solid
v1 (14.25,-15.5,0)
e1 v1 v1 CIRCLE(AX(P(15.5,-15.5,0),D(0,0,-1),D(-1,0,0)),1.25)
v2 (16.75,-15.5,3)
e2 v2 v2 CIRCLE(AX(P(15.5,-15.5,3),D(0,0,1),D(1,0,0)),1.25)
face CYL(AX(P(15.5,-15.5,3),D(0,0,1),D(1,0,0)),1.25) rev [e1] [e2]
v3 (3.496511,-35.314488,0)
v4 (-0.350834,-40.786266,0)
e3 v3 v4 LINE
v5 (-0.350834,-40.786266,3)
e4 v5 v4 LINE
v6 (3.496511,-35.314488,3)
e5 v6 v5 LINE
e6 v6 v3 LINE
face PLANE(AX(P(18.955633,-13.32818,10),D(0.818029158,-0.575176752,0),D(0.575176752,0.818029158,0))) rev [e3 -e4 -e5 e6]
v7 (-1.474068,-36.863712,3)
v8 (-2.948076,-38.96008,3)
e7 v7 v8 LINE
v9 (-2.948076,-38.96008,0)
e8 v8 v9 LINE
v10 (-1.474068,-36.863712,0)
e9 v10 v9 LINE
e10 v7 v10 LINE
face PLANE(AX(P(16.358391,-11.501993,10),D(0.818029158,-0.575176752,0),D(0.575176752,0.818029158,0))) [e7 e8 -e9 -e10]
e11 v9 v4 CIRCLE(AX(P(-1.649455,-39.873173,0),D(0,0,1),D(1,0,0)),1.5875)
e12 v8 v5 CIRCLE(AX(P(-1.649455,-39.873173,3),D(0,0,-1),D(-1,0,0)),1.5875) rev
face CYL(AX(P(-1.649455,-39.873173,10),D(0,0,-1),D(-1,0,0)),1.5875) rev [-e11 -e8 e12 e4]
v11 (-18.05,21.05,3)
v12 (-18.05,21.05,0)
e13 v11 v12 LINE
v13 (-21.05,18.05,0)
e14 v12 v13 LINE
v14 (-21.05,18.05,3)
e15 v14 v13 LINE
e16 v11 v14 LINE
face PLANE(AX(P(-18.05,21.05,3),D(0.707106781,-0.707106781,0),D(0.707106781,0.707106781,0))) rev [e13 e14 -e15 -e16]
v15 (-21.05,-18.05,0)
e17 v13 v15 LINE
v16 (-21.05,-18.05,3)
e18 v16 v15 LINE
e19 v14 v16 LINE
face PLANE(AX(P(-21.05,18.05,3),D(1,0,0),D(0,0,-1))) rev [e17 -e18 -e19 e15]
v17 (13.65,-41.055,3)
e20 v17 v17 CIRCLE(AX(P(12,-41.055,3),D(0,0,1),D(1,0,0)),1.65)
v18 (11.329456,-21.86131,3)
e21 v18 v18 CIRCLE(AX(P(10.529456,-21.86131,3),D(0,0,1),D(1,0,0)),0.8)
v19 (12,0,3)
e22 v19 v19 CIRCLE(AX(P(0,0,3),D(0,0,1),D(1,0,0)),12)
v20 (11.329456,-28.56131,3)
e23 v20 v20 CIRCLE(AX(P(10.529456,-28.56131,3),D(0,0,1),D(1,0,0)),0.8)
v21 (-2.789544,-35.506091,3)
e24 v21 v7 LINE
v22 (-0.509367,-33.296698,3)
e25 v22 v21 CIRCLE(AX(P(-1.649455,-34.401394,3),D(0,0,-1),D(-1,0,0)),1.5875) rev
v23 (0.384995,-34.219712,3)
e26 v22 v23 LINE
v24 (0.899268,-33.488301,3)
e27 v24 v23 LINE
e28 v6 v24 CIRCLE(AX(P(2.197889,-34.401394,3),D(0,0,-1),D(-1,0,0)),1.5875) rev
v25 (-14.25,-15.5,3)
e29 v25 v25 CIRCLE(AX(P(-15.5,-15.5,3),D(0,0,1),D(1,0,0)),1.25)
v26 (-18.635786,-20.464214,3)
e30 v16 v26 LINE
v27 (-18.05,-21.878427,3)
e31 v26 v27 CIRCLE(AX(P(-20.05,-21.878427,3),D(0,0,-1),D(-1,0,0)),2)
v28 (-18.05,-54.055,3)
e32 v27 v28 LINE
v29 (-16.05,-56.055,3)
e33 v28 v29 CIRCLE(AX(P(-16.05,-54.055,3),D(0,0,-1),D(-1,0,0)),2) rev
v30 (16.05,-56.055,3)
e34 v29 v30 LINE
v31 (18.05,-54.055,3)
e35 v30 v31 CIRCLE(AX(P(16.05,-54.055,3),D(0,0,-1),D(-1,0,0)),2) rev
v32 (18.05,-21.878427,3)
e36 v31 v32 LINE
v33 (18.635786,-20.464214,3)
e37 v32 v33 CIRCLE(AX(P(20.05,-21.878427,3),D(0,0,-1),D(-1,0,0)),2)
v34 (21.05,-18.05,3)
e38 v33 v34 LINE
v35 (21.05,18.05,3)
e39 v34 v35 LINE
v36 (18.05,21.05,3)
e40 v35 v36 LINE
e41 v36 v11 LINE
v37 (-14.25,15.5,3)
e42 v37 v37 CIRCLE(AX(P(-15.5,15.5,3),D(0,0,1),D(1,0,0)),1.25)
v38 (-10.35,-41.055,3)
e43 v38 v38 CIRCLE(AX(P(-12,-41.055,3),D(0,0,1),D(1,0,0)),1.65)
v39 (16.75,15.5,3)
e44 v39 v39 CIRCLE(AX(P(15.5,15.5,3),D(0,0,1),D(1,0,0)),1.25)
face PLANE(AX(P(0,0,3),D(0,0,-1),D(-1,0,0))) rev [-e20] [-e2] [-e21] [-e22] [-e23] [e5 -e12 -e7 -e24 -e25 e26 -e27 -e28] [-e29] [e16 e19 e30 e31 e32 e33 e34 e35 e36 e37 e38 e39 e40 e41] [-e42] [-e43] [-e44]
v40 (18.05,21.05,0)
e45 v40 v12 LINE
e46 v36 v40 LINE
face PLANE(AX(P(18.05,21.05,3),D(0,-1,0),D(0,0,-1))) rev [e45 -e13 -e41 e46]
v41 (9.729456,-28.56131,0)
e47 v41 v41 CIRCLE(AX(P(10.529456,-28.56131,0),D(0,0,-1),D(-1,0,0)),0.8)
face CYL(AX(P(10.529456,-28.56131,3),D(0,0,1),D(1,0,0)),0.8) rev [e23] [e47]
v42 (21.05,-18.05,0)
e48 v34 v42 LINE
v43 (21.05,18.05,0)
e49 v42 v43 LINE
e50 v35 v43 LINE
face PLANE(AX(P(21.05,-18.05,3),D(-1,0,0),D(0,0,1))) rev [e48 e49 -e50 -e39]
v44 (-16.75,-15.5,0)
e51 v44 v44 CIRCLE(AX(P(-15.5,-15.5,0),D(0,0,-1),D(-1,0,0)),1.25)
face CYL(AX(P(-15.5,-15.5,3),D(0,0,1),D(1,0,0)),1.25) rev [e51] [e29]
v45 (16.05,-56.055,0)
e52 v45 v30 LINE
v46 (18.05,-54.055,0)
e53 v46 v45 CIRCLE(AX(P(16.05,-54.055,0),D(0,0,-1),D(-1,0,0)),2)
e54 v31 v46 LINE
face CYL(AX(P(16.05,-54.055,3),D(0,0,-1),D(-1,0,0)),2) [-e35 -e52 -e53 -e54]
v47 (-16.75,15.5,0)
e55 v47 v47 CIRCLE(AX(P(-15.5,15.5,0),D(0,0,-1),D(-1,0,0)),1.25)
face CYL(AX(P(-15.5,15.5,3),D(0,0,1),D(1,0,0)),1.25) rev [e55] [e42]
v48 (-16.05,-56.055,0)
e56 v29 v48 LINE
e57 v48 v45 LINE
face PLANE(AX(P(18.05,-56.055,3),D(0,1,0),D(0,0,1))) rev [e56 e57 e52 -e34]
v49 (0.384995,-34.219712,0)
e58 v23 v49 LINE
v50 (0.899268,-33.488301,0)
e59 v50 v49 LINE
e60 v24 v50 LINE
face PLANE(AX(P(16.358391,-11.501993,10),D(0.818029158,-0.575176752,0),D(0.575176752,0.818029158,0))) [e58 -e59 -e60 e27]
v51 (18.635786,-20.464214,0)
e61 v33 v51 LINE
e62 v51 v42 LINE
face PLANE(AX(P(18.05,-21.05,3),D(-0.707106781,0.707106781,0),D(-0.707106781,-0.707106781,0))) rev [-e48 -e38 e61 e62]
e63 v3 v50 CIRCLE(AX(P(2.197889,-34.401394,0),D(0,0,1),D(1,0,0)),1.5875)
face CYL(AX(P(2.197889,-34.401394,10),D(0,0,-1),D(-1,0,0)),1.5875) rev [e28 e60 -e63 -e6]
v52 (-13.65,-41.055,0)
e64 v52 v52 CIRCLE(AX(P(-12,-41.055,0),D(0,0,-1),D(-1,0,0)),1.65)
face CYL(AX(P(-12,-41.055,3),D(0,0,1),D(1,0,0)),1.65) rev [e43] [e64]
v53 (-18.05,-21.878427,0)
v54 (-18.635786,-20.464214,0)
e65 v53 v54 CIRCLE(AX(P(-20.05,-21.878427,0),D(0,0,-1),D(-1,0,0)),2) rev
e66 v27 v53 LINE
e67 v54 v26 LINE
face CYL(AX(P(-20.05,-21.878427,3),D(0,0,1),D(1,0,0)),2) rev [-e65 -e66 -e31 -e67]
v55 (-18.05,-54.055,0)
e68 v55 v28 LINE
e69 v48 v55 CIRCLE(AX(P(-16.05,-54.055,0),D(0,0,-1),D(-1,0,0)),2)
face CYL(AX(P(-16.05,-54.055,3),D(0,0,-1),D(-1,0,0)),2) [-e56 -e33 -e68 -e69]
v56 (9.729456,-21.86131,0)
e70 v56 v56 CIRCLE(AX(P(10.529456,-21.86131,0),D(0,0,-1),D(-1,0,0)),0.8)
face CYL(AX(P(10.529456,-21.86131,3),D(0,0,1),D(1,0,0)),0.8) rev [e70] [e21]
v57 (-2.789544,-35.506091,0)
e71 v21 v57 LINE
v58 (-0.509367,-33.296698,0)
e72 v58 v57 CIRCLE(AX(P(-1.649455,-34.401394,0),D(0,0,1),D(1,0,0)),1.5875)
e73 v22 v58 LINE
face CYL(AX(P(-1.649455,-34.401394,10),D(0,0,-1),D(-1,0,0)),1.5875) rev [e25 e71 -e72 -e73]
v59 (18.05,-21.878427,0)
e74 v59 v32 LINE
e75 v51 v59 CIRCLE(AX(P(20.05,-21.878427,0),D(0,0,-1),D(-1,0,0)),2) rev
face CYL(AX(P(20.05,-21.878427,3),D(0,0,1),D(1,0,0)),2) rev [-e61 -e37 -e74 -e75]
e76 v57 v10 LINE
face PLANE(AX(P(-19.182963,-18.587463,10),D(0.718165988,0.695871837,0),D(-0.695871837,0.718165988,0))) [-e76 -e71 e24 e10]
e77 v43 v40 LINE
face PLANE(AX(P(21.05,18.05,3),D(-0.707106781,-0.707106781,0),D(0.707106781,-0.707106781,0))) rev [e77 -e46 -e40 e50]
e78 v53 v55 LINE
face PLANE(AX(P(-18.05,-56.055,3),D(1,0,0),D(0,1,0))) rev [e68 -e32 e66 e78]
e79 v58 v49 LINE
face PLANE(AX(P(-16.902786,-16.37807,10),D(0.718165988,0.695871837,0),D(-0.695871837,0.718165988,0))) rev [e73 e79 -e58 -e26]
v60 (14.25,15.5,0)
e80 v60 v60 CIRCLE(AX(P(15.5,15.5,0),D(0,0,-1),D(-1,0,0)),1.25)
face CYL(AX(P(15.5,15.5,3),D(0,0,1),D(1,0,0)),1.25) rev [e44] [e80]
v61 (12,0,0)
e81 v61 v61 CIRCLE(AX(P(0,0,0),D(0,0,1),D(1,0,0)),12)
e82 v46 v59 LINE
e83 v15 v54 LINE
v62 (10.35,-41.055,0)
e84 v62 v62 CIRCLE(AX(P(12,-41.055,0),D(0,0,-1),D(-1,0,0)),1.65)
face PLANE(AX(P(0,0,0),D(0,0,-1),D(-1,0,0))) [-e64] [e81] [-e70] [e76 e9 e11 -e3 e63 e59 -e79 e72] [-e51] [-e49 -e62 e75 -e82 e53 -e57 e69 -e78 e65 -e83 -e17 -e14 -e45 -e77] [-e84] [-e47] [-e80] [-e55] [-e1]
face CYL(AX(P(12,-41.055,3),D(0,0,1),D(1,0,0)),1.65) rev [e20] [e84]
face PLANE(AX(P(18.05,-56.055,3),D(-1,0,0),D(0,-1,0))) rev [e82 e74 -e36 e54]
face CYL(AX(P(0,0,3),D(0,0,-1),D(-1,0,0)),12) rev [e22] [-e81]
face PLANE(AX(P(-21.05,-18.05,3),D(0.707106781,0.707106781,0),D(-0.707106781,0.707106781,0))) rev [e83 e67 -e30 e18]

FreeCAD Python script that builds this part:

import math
import FreeCAD as App
import Part
import Sketcher

V = App.Vector
Q = App.Units.Quantity


def edges_at(feature, points):
    """Names of the edges that pass closest to the given points."""
    edges = feature.Shape.Edges
    near = lambda p: min(range(len(edges)), key=lambda i: edges[i].distToShape(Part.Vertex(*p))[0])
    return sorted({f"Edge{near(p) + 1}" for p in points})

doc = App.newDocument("Part")
body = doc.addObject("PartDesign::Body", "Body")

# Sketch on XY plane
sketch1 = doc.addObject("Sketcher::SketchObject", "Sketch")
body.addObject(sketch1)
sketch1.AttachmentSupport = (doc.XY_Plane, [""])
sketch1.MapMode = "FlatFace"
sketch1.addGeometry([
    Part.LineSegment(V(18.1, -56.1, 0), V(18.1, -21.1, 0)),  # 0
    Part.LineSegment(V(18.1, -21.1, 0), V(21.1, -18.1, 0)),  # 1
    Part.LineSegment(V(21.1, -18.1, 0), V(21.1, 18.1, 0)),  # 2
    Part.LineSegment(V(21.1, 18.1, 0), V(18.1, 21.1, 0)),  # 3
    Part.LineSegment(V(18.1, 21.1, 0), V(-18.1, 21.1, 0)),  # 4
    Part.LineSegment(V(-18.1, 21.1, 0), V(-21.1, 18.1, 0)),  # 5
    Part.LineSegment(V(-21.1, 18.1, 0), V(-21.1, -18.1, 0)),  # 6
    Part.LineSegment(V(-21.1, -18.1, 0), V(-18.1, -21.1, 0)),  # 7
    Part.LineSegment(V(-18.1, -21.1, 0), V(-18.1, -56.1, 0)),  # 8
    Part.LineSegment(V(-18.1, -56.1, 0), V(18.1, -56.1, 0)),  # 9
    Part.Circle(V(0, 0, 0), V(0, 0, 1), 12),  # 10
], False)
sketch1.addConstraint([
    Sketcher.Constraint("Coincident", 0, 2, 1, 1),
    Sketcher.Constraint("Coincident", 1, 2, 2, 1),
    Sketcher.Constraint("Coincident", 2, 2, 3, 1),
    Sketcher.Constraint("Coincident", 3, 2, 4, 1),
    Sketcher.Constraint("Coincident", 4, 2, 5, 1),
    Sketcher.Constraint("Coincident", 5, 2, 6, 1),
    Sketcher.Constraint("Coincident", 6, 2, 7, 1),
    Sketcher.Constraint("Coincident", 7, 2, 8, 1),
    Sketcher.Constraint("Coincident", 8, 2, 9, 1),
    Sketcher.Constraint("Coincident", 9, 2, 0, 1),
    Sketcher.Constraint("Vertical", 0),
    Sketcher.Constraint("Vertical", 2),
    Sketcher.Constraint("Horizontal", 4),
    Sketcher.Constraint("Vertical", 6),
    Sketcher.Constraint("Vertical", 8),
    Sketcher.Constraint("Horizontal", 9),
    Sketcher.Constraint("Coincident", 10, 3, -1, 1),
    Sketcher.Constraint("Symmetric", 0, 2, 4, 2, -1, 1),
    Sketcher.Constraint("Symmetric", 1, 2, 5, 2, -1, 1),
    Sketcher.Constraint("Symmetric", 3, 2, 7, 2, -1, 1),
    Sketcher.Constraint("Perpendicular", 1, 3),
    Sketcher.Constraint("Perpendicular", 5, 7),
    Sketcher.Constraint("Horizontal", 2, 2, 5, 2),
    Sketcher.Constraint("Vertical", 0, 2, 3, 2),
    Sketcher.Constraint("Equal", 9, 2),
    Sketcher.Constraint("Diameter", 10, Q("24 mm")),
    Sketcher.Constraint("DistanceX", 4, 2, 4, 1, Q("36.1 mm")),
    Sketcher.Constraint("DistanceX", 0, 2, 1, 2, Q("3 mm")),
    Sketcher.Constraint("DistanceY", 0, 1, 0, 2, Q("35.005 mm")),
])
pad1 = doc.addObject("PartDesign::Pad", "Pad")
body.addObject(pad1)
pad1.Profile = sketch1
pad1.Length = 3

# Sketch on XY plane
sketch2 = doc.addObject("Sketcher::SketchObject", "Sketch001")
body.addObject(sketch2)
sketch2.AttachmentSupport = (doc.XY_Plane, [""])
sketch2.MapMode = "FlatFace"
sketch2.AttachmentOffset = App.Placement(V(0, 0, 3), App.Rotation())
sketch2.addGeometry([
    Part.Circle(V(-15.5, 15.5, 0), V(0, 0, 1), 1.2),
    Part.Circle(V(15.5, 15.5, 0), V(0, 0, 1), 1.2),
    Part.Circle(V(-15.5, -15.5, 0), V(0, 0, 1), 1.2),
    Part.Circle(V(15.5, -15.5, 0), V(0, 0, 1), 1.2),
], False)
sketch2.addConstraint([
    Sketcher.Constraint("Equal", 0, 1),
    Sketcher.Constraint("Equal", 1, 2),
    Sketcher.Constraint("Equal", 2, 3),
    Sketcher.Constraint("Symmetric", 1, 3, 2, 3, -1, 1),
    Sketcher.Constraint("Symmetric", 0, 3, 3, 3, -1, 1),
    Sketcher.Constraint("Symmetric", 0, 3, 1, 3, -2),
    Sketcher.Constraint("Diameter", 0, Q("2.5 mm")),
    Sketcher.Constraint("DistanceX", 0, 3, 1, 3, Q("31 mm")),
    Sketcher.Constraint("DistanceY", 2, 3, 0, 3, Q("31 mm")),
])
doc.recompute()
hole = doc.addObject("PartDesign::Hole", "Hole")
body.addObject(hole)
hole.Profile = sketch2
hole.ThreadType = "None"
hole.Diameter = 2.5
hole.DepthType = "Dimension"
hole.Depth = 5
hole.DrillPoint = "Angled"
hole.DrillPointAngle = 118

# Sketch on XY plane
sketch3 = doc.addObject("Sketcher::SketchObject", "Sketch002")
body.addObject(sketch3)
sketch3.AttachmentSupport = (doc.XY_Plane, [""])
sketch3.MapMode = "FlatFace"
sketch3.AttachmentOffset = App.Placement(V(0, 0, 3), App.Rotation())
sketch3.addGeometry([
    Part.Circle(V(12, -41.1, 0), V(0, 0, 1), 1.6),
    Part.Circle(V(-12, -41.1, 0), V(0, 0, 1), 1.6),
], False)
sketch3.addConstraint([
    Sketcher.Constraint("Equal", 0, 1),
    Sketcher.Constraint("Symmetric", 0, 3, 1, 3, -2),
    Sketcher.Constraint("Diameter", 0, Q("3.3 mm")),
    Sketcher.Constraint("DistanceX", -1, 1, 0, 3, Q("12 mm")),
    Sketcher.Constraint("DistanceY", 0, 3, -1, 1, Q("41.055 mm")),
])
doc.recompute()
hole2 = doc.addObject("PartDesign::Hole", "Hole001")
body.addObject(hole2)
hole2.Profile = sketch3
hole2.ThreadType = "None"
hole2.Diameter = 3.3
hole2.DepthType = "Dimension"
hole2.Depth = 5
hole2.DrillPoint = "Angled"
hole2.DrillPointAngle = 118
doc.recompute()

fillet = doc.addObject("PartDesign::Fillet", "Fillet")
body.addObject(fillet)
fillet.Base = (hole2, edges_at(hole2, [
    (18.05, -21.05, 1.5),
    (18.05, -56.055, 1.5),
    (-18.05, -56.055, 1.5),
    (-18.05, -21.05, 1.5),
]))
fillet.Radius = 2

# Sketch on XY plane
sketch4 = doc.addObject("Sketcher::SketchObject", "Sketch003")
body.addObject(sketch4)
sketch4.AttachmentSupport = (doc.XY_Plane, [""])
sketch4.MapMode = "FlatFace"
sketch4.AttachmentOffset = App.Placement(V(0, 0, 3), App.Rotation())
sketch4.addGeometry([
    Part.Circle(V(10.5, -21.9, 0), V(0, 0, 1), 0.8),
    Part.Circle(V(10.5, -28.6, 0), V(0, 0, 1), 0.8),
], False)
sketch4.addConstraint([
    Sketcher.Constraint("Equal", 0, 1),
    Sketcher.Constraint("Vertical", 0, 3, 1, 3),
    Sketcher.Constraint("Diameter", 0, Q("1.6 mm")),
    Sketcher.Constraint("DistanceY", 1, 3, 0, 3, Q("6.7 mm")),
    Sketcher.Constraint("DistanceY", 0, 3, -1, 1, Q("21.86131 mm")),
    Sketcher.Constraint("DistanceX", -1, 1, 0, 3, Q("10.529456 mm")),
])
doc.recompute()
hole3 = doc.addObject("PartDesign::Hole", "Hole002")
body.addObject(hole3)
hole3.Profile = sketch4
hole3.ThreadType = "None"
hole3.Diameter = 1.6
hole3.DepthType = "Dimension"
hole3.Depth = 5
hole3.DrillPoint = "Angled"
hole3.DrillPointAngle = 118

# Sketch on XY plane
sketch5 = doc.addObject("Sketcher::SketchObject", "Sketch004")
body.addObject(sketch5)
sketch5.AttachmentSupport = (doc.XY_Plane, [""])
sketch5.MapMode = "FlatFace"
sketch5.addGeometry([
    Part.LineSegment(V(-0.4, -40.8, 0), V(3.5, -35.3, 0)),  # 0
    Part.ArcOfCircle(Part.Circle(V(2.2, -34.4, 0), V(0, 0, 1), 1.6), math.radians(-35), math.radians(145)),  # 1
    Part.LineSegment(V(0.9, -33.5, 0), V(0.4, -34.2, 0)),  # 2
    Part.LineSegment(V(0.4, -34.2, 0), V(-0.5, -33.3, 0)),  # 3
    Part.ArcOfCircle(Part.Circle(V(-1.6, -34.4, 0), V(0, 0, 1), 1.6), math.radians(44), math.radians(224)),  # 4
    Part.LineSegment(V(-2.8, -35.5, 0), V(-1.5, -36.9, 0)),  # 5
    Part.LineSegment(V(-1.5, -36.9, 0), V(-2.9, -39, 0)),  # 6
    Part.ArcOfCircle(Part.Circle(V(-1.6, -39.9, 0), V(0, 0, 1), 1.6), math.radians(145), math.radians(325)),  # 7
], False)
sketch5.addConstraint([
    Sketcher.Constraint("Tangent", 0, 2, 1, 1),
    Sketcher.Constraint("Tangent", 1, 2, 2, 1),
    Sketcher.Constraint("Coincident", 2, 2, 3, 1),
    Sketcher.Constraint("Tangent", 3, 2, 4, 1),
    Sketcher.Constraint("Tangent", 4, 2, 5, 1),
    Sketcher.Constraint("Coincident", 5, 2, 6, 1),
    Sketcher.Constraint("Tangent", 6, 2, 7, 1),
    Sketcher.Constraint("Tangent", 7, 2, 0, 1),
    Sketcher.Constraint("Equal", 1, 4),
    Sketcher.Constraint("Equal", 4, 7),
    Sketcher.Constraint("Parallel", 0, 2),
    Sketcher.Constraint("Parallel", 3, 5),
    Sketcher.Constraint("Parallel", 2, 6),
    Sketcher.Constraint("Horizontal", 1, 3, 4, 3),
    Sketcher.Constraint("Vertical", 4, 3, 7, 3),
    Sketcher.Constraint("Radius", 1, Q("1.5875 mm")),
    Sketcher.Constraint("DistanceY", 5, 2, 2, 2, Q("2.644 mm")),
    Sketcher.Constraint("Distance", 5, Q("1.8904 mm")),
    Sketcher.Constraint("DistanceY", 1, 2, -1, 1, Q("33.488301 mm")),
    Sketcher.Constraint("DistanceX", 5, 2, 3, 2, Q("0.964701 mm")),
    Sketcher.Constraint("DistanceX", -1, 1, 1, 3, Q("2.197889 mm")),
])
pocket1 = doc.addObject("PartDesign::Pocket", "Pocket")
body.addObject(pocket1)
pocket1.Profile = sketch5
pocket1.Length = 10
pocket1.Reversed = True

doc.recompute()
